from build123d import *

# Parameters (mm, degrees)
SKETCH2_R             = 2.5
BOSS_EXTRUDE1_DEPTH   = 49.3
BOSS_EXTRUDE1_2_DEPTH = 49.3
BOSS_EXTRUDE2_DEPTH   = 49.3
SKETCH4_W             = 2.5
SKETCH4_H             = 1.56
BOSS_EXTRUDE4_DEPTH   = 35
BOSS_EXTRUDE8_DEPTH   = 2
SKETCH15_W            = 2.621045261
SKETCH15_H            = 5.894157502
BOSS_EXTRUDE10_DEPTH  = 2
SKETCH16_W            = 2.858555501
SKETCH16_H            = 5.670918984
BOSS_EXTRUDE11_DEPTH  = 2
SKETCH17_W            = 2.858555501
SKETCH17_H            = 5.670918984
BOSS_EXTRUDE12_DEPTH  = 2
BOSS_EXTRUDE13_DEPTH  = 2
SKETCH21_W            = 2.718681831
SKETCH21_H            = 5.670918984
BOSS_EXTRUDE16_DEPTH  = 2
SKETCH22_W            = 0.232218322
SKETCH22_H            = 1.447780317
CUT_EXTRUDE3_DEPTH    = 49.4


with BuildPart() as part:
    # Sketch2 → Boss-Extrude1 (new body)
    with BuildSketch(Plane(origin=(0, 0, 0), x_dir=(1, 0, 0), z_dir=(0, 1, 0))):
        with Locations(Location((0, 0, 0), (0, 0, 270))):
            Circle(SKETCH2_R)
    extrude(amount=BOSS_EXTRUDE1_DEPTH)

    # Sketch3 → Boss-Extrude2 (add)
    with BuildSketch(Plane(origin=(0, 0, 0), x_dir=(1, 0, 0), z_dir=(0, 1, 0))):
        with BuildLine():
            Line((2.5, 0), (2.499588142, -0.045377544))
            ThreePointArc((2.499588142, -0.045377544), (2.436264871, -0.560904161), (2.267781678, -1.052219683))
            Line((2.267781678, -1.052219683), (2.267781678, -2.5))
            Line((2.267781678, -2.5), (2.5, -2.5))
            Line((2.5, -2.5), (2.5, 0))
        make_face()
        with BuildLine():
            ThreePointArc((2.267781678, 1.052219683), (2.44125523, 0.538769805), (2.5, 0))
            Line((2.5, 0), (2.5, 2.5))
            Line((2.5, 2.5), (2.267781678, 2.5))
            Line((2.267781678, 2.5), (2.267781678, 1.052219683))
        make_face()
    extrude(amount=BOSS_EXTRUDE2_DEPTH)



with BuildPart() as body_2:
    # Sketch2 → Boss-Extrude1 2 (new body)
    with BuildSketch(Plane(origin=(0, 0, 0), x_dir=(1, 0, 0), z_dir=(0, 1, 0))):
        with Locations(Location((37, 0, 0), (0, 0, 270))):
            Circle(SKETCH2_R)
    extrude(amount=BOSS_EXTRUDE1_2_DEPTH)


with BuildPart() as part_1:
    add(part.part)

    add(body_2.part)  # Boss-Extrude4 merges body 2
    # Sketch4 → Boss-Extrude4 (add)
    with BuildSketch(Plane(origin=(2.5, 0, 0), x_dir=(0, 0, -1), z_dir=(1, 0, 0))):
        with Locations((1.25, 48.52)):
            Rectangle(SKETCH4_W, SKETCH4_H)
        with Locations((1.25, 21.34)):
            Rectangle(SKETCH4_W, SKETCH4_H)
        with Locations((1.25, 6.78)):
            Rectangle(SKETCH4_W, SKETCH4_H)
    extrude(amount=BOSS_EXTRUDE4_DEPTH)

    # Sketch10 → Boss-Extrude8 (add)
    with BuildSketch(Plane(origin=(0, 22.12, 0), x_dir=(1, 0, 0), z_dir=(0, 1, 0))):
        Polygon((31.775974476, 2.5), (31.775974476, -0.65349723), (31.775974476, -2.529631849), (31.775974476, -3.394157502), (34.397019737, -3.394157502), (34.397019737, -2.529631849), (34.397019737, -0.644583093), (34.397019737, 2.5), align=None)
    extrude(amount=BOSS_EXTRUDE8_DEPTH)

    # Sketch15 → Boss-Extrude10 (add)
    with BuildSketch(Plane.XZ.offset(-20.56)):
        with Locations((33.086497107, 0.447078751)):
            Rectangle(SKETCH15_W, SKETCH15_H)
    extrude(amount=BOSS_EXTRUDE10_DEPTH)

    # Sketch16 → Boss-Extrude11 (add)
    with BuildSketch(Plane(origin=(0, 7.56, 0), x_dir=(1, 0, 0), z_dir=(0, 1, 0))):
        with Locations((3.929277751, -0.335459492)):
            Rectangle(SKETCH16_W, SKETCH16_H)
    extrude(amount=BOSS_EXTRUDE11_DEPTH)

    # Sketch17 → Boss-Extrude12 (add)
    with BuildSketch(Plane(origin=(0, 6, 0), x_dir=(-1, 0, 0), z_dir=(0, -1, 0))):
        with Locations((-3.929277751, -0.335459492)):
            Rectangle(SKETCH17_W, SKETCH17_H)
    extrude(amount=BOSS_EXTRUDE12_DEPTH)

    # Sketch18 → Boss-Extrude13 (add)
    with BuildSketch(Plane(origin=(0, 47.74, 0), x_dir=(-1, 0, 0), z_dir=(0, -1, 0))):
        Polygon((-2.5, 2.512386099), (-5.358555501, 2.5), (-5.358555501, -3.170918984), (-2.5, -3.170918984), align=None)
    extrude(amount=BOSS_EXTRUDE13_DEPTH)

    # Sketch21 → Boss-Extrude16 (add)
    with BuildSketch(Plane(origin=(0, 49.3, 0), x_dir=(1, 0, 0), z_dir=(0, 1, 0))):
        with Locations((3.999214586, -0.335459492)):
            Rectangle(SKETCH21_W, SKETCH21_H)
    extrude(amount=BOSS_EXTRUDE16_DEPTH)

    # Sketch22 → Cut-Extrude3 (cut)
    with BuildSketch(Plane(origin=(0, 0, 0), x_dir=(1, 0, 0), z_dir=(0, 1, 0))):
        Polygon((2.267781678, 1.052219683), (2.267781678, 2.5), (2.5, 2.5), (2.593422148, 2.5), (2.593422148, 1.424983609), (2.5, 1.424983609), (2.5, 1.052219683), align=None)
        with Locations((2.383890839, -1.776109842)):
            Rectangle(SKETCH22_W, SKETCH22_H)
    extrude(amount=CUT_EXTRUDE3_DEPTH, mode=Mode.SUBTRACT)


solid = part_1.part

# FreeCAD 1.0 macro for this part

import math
import FreeCAD as App
import Part
import Sketcher

V = App.Vector
Q = App.Units.Quantity

doc = App.newDocument("Part")
body = doc.addObject("PartDesign::Body", "Body")

# Sketch on XZ plane
sketch1 = body.newObject("Sketcher::SketchObject", "Sketch")
sketch1.AttachmentSupport = (doc.getObject("XZ_Plane"), [""])
sketch1.MapMode = "FlatFace"
sketch1.addGeometry(Part.Circle(V(0, 0, 0), V(0, 0, 1), 2.5), False)
sketch1.addConstraint([
    Sketcher.Constraint("Coincident", 0, 3, -1, 1),
    Sketcher.Constraint("Diameter", 0, 5.0),
])
pad1 = body.newObject("PartDesign::Pad", "Pad")
pad1.Profile = sketch1
pad1.Length = 49.3
pad1.Reversed = True

# Sketch on XZ plane
sketch2 = body.newObject("Sketcher::SketchObject", "Sketch001")
sketch2.AttachmentSupport = (doc.getObject("XZ_Plane"), [""])
sketch2.MapMode = "FlatFace"
sketch2.addGeometry([
    Part.LineSegment(V(2.5, 0, 0), V(2.5, 0.045, 0)),  # 0
    Part.ArcOfCircle(Part.Circle(V(0, 0, 0), V(0, 0, 1), 2.5), math.radians(1), math.radians(25)),  # 1
    Part.LineSegment(V(2.268, 1.052, 0), V(2.268, 2.5, 0)),  # 2
    Part.LineSegment(V(2.268, 2.5, 0), V(2.5, 2.5, 0)),  # 3
    Part.LineSegment(V(2.5, 2.5, 0), V(2.5, 0, 0)),  # 4
    Part.ArcOfCircle(Part.Circle(V(0, 0, 0), V(0, 0, 1), 2.5), math.radians(-25), math.radians(0)),  # 5
    Part.LineSegment(V(2.5, 0, 0), V(2.5, -2.5, 0)),  # 6
    Part.LineSegment(V(2.5, -2.5, 0), V(2.268, -2.5, 0)),  # 7
    Part.LineSegment(V(2.268, -2.5, 0), V(2.268, -1.052, 0)),  # 8
], False)
sketch2.addConstraint([
    Sketcher.Constraint("Coincident", 0, 2, 1, 1),
    Sketcher.Constraint("Coincident", 1, 2, 2, 1),
    Sketcher.Constraint("Coincident", 2, 2, 3, 1),
    Sketcher.Constraint("Coincident", 3, 2, 4, 1),
    Sketcher.Constraint("Coincident", 4, 2, 0, 1),
    Sketcher.Constraint("Tangent", 5, 2, 6, 1),
    Sketcher.Constraint("Coincident", 6, 2, 7, 1),
    Sketcher.Constraint("Coincident", 7, 2, 8, 1),
    Sketcher.Constraint("Coincident", 8, 2, 5, 1),
    Sketcher.Constraint("Vertical", 2),
    Sketcher.Constraint("Horizontal", 3),
    Sketcher.Constraint("Vertical", 4),
    Sketcher.Constraint("Vertical", 6),
    Sketcher.Constraint("Horizontal", 7),
    Sketcher.Constraint("Vertical", 8),
    Sketcher.Constraint("Coincident", 1, 3, -1, 1),
    Sketcher.Constraint("Coincident", 5, 3, -1, 1),
    Sketcher.Constraint("Coincident", 5, 2, 4, 2),
    Sketcher.Constraint("Equal", 1, 5),
    Sketcher.Constraint("Symmetric", 2, 2, 7, 2, -1),
    Sketcher.Constraint("Radius", 1, 2.5),
    Sketcher.Constraint("DistanceY", 4, 2, 4, 1, 2.5),
    Sketcher.Constraint("Angle", 0, Q("90.520017 deg")),
    Sketcher.Constraint("DistanceX", 3, 1, 3, 2, 0.232218),
])
pad2 = body.newObject("PartDesign::Pad", "Pad001")
pad2.Profile = sketch2
pad2.Length = 49.3
pad2.Reversed = True
body2 = doc.addObject("PartDesign::Body", "Body001")

# Sketch on XZ plane
sketch3 = body2.newObject("Sketcher::SketchObject", "Sketch002")
sketch3.AttachmentSupport = (doc.getObject("XZ_Plane001"), [""])
sketch3.MapMode = "FlatFace"
sketch3.addGeometry(Part.Circle(V(37, 0, 0), V(0, 0, 1), 2.5), False)
sketch3.addConstraint([
    Sketcher.Constraint("PointOnObject", 0, 3, -1),
    Sketcher.Constraint("Diameter", 0, 5.0),
    Sketcher.Constraint("DistanceX", -1, 1, 0, 3, 37.0),
])
pad3 = body2.newObject("PartDesign::Pad", "Pad002")
pad3.Profile = sketch3
pad3.Length = 49.3
pad3.Reversed = True
body.AllowCompound = True
doc.recompute()

boolean = body.newObject("PartDesign::Boolean", "Boolean")
boolean.Type = "Fuse"
boolean.addObjects([body2])

# Sketch on YZ plane
sketch4 = body.newObject("Sketcher::SketchObject", "Sketch003")
sketch4.AttachmentSupport = (doc.getObject("YZ_Plane"), [""])
sketch4.MapMode = "FlatFace"
sketch4.AttachmentOffset = App.Placement(V(0, 0, 2.5), App.Rotation())
sketch4.addGeometry([
    Part.LineSegment(V(49.3, 0, 0), V(47.7, 0, 0)),  # 0
    Part.LineSegment(V(47.7, 0, 0), V(47.7, -2.5, 0)),  # 1
    Part.LineSegment(V(47.7, -2.5, 0), V(49.3, -2.5, 0)),  # 2
    Part.LineSegment(V(49.3, -2.5, 0), V(49.3, 0, 0)),  # 3
    Part.LineSegment(V(22.1, 0, 0), V(20.6, 0, 0)),  # 4
    Part.LineSegment(V(20.6, 0, 0), V(20.6, -2.5, 0)),  # 5
    Part.LineSegment(V(20.6, -2.5, 0), V(22.1, -2.5, 0)),  # 6
    Part.LineSegment(V(22.1, -2.5, 0), V(22.1, 0, 0)),  # 7
    Part.LineSegment(V(7.6, 0, 0), V(6, 0, 0)),  # 8
    Part.LineSegment(V(6, 0, 0), V(6, -2.5, 0)),  # 9
    Part.LineSegment(V(6, -2.5, 0), V(7.6, -2.5, 0)),  # 10
    Part.LineSegment(V(7.6, -2.5, 0), V(7.6, 0, 0)),  # 11
], False)
sketch4.addConstraint([
    Sketcher.Constraint("Coincident", 0, 2, 1, 1),
    Sketcher.Constraint("Coincident", 1, 2, 2, 1),
    Sketcher.Constraint("Coincident", 2, 2, 3, 1),
    Sketcher.Constraint("Coincident", 3, 2, 0, 1),
    Sketcher.Constraint("Coincident", 4, 2, 5, 1),
    Sketcher.Constraint("Coincident", 5, 2, 6, 1),
    Sketcher.Constraint("Coincident", 6, 2, 7, 1),
    Sketcher.Constraint("Coincident", 7, 2, 4, 1),
    Sketcher.Constraint("Coincident", 8, 2, 9, 1),
    Sketcher.Constraint("Coincident", 9, 2, 10, 1),
    Sketcher.Constraint("Coincident", 10, 2, 11, 1),
    Sketcher.Constraint("Coincident", 11, 2, 8, 1),
    Sketcher.Constraint("Horizontal", 0),
    Sketcher.Constraint("Vertical", 1),
    Sketcher.Constraint("Horizontal", 2),
    Sketcher.Constraint("Vertical", 3),
    Sketcher.Constraint("Horizontal", 4),
    Sketcher.Constraint("Vertical", 5),
    Sketcher.Constraint("Horizontal", 6),
    Sketcher.Constraint("Vertical", 7),
    Sketcher.Constraint("Horizontal", 8),
    Sketcher.Constraint("Vertical", 9),
    Sketcher.Constraint("Horizontal", 10),
    Sketcher.Constraint("Vertical", 11),
    Sketcher.Constraint("PointOnObject", 0, 2, -1),
    Sketcher.Constraint("PointOnObject", 4, 2, -1),
    Sketcher.Constraint("PointOnObject", 8, 2, -1),
    Sketcher.Constraint("Horizontal", 2, 2, 5, 2),
    Sketcher.Constraint("Horizontal", 6, 2, 9, 2),
    Sketcher.Constraint("Equal", 2, 4),
    Sketcher.Constraint("Equal", 6, 8),
    Sketcher.Constraint("DistanceY", 1, 2, 1, 1, 2.5),
    Sketcher.Constraint("DistanceX", -1, 1, 8, 2, 6.0),
    Sketcher.Constraint("DistanceX", 10, 2, 5, 2, 13.0),
    Sketcher.Constraint("DistanceX", 0, 2, 0, 1, 1.56),
    Sketcher.Constraint("DistanceX", -1, 1, 2, 2, 49.3),
])
pad4 = body.newObject("PartDesign::Pad", "Pad003")
pad4.Profile = sketch4
pad4.Length = 35

# Sketch on XZ plane
sketch5 = body.newObject("Sketcher::SketchObject", "Sketch004")
sketch5.AttachmentSupport = (doc.getObject("XZ_Plane"), [""])
sketch5.MapMode = "FlatFace"
sketch5.AttachmentOffset = App.Placement(V(0, 0, -22.12), App.Rotation())
sketch5.addGeometry([
    Part.LineSegment(V(31.8, -2.5, 0), V(31.8, 3.4, 0)),
    Part.LineSegment(V(31.8, 3.4, 0), V(34.4, 3.4, 0)),
    Part.LineSegment(V(34.4, 3.4, 0), V(34.4, -2.5, 0)),
    Part.LineSegment(V(34.4, -2.5, 0), V(31.8, -2.5, 0)),
], False)
sketch5.addConstraint([
    Sketcher.Constraint("Coincident", 0, 2, 1, 1),
    Sketcher.Constraint("Coincident", 1, 2, 2, 1),
    Sketcher.Constraint("Coincident", 2, 2, 3, 1),
    Sketcher.Constraint("Coincident", 3, 2, 0, 1),
    Sketcher.Constraint("Vertical", 0),
    Sketcher.Constraint("Horizontal", 1),
    Sketcher.Constraint("Vertical", 2),
    Sketcher.Constraint("Horizontal", 3),
    Sketcher.Constraint("DistanceY", 2, 2, -1, 1, 2.5),
    Sketcher.Constraint("DistanceX", 1, 1, 1, 2, 2.621045),
    Sketcher.Constraint("DistanceY", 0, 1, 0, 2, 5.894158),
    Sketcher.Constraint("DistanceX", -1, 1, 1, 2, 34.39702),
])
pad5 = body.newObject("PartDesign::Pad", "Pad004")
pad5.Profile = sketch5
pad5.Length = 2
pad5.Reversed = True

# Sketch on XZ plane
sketch6 = body.newObject("Sketcher::SketchObject", "Sketch005")
sketch6.AttachmentSupport = (doc.getObject("XZ_Plane"), [""])
sketch6.MapMode = "FlatFace"
sketch6.AttachmentOffset = App.Placement(V(0, 0, -20.56), App.Rotation())
sketch6.addGeometry([
    Part.LineSegment(V(31.8, 3.4, 0), V(31.8, -2.5, 0)),
    Part.LineSegment(V(31.8, -2.5, 0), V(34.4, -2.5, 0)),
    Part.LineSegment(V(34.4, -2.5, 0), V(34.4, 3.4, 0)),
    Part.LineSegment(V(34.4, 3.4, 0), V(31.8, 3.4, 0)),
], False)
sketch6.addConstraint([
    Sketcher.Constraint("Coincident", 0, 2, 1, 1),
    Sketcher.Constraint("Coincident", 1, 2, 2, 1),
    Sketcher.Constraint("Coincident", 2, 2, 3, 1),
    Sketcher.Constraint("Coincident", 3, 2, 0, 1),
    Sketcher.Constraint("Vertical", 0),
    Sketcher.Constraint("Horizontal", 1),
    Sketcher.Constraint("Vertical", 2),
    Sketcher.Constraint("Horizontal", 3),
    Sketcher.Constraint("DistanceY", 0, 2, -1, 1, 2.5),
    Sketcher.Constraint("DistanceX", 1, 1, 1, 2, 2.621045),
    Sketcher.Constraint("DistanceY", 0, 2, 0, 1, 5.894158),
    Sketcher.Constraint("DistanceX", -1, 1, 1, 2, 34.39702),
])
pad6 = body.newObject("PartDesign::Pad", "Pad005")
pad6.Profile = sketch6
pad6.Length = 2

# Sketch on XZ plane
sketch7 = body.newObject("Sketcher::SketchObject", "Sketch006")
sketch7.AttachmentSupport = (doc.getObject("XZ_Plane"), [""])
sketch7.MapMode = "FlatFace"
sketch7.AttachmentOffset = App.Placement(V(0, 0, -7.56), App.Rotation())
sketch7.addGeometry([
    Part.LineSegment(V(2.5, -2.5, 0), V(2.5, 3.2, 0)),
    Part.LineSegment(V(2.5, 3.2, 0), V(5.4, 3.2, 0)),
    Part.LineSegment(V(5.4, 3.2, 0), V(5.4, -2.5, 0)),
    Part.LineSegment(V(5.4, -2.5, 0), V(2.5, -2.5, 0)),
], False)
sketch7.addConstraint([
    Sketcher.Constraint("Coincident", 0, 2, 1, 1),
    Sketcher.Constraint("Coincident", 1, 2, 2, 1),
    Sketcher.Constraint("Coincident", 2, 2, 3, 1),
    Sketcher.Constraint("Coincident", 3, 2, 0, 1),
    Sketcher.Constraint("Vertical", 0),
    Sketcher.Constraint("Horizontal", 1),
    Sketcher.Constraint("Vertical", 2),
    Sketcher.Constraint("Horizontal", 3),
    Sketcher.Constraint("DistanceX", -1, 1, 0, 2, 2.5),
    Sketcher.Constraint("DistanceY", 2, 2, -1, 1, 2.5),
    Sketcher.Constraint("DistanceY", 0, 1, 0, 2, 5.670919),
    Sketcher.Constraint("DistanceX", 1, 1, 1, 2, 2.858555),
])
pad7 = body.newObject("PartDesign::Pad", "Pad006")
pad7.Profile = sketch7
pad7.Length = 2
pad7.Reversed = True

# Sketch on XZ plane
sketch8 = body.newObject("Sketcher::SketchObject", "Sketch007")
sketch8.AttachmentSupport = (doc.getObject("XZ_Plane"), [""])
sketch8.MapMode = "FlatFace"
sketch8.AttachmentOffset = App.Placement(V(0, 0, -6), App.Rotation())
sketch8.addGeometry([
    Part.LineSegment(V(5.4, -2.5, 0), V(5.4, 3.2, 0)),
    Part.LineSegment(V(5.4, 3.2, 0), V(2.5, 3.2, 0)),
    Part.LineSegment(V(2.5, 3.2, 0), V(2.5, -2.5, 0)),
    Part.LineSegment(V(2.5, -2.5, 0), V(5.4, -2.5, 0)),
], False)
sketch8.addConstraint([
    Sketcher.Constraint("Coincident", 0, 2, 1, 1),
    Sketcher.Constraint("Coincident", 1, 2, 2, 1),
    Sketcher.Constraint("Coincident", 2, 2, 3, 1),
    Sketcher.Constraint("Coincident", 3, 2, 0, 1),
    Sketcher.Constraint("Vertical", 0),
    Sketcher.Constraint("Horizontal", 1),
    Sketcher.Constraint("Vertical", 2),
    Sketcher.Constraint("Horizontal", 3),
    Sketcher.Constraint("DistanceX", -1, 1, 1, 2, 2.5),
    Sketcher.Constraint("DistanceY", 2, 2, -1, 1, 2.5),
    Sketcher.Constraint("DistanceY", 0, 1, 0, 2, 5.670919),
    Sketcher.Constraint("DistanceX", 1, 2, 1, 1, 2.858555),
])
pad8 = body.newObject("PartDesign::Pad", "Pad007")
pad8.Profile = sketch8
pad8.Length = 2

# Sketch on XZ plane
sketch9 = body.newObject("Sketcher::SketchObject", "Sketch008")
sketch9.AttachmentSupport = (doc.getObject("XZ_Plane"), [""])
sketch9.MapMode = "FlatFace"
sketch9.AttachmentOffset = App.Placement(V(0, 0, -47.74), App.Rotation())
sketch9.addGeometry([
    Part.LineSegment(V(2.5, -2.5, 0), V(5.4, -2.5, 0)),
    Part.LineSegment(V(5.4, -2.5, 0), V(5.4, 3.2, 0)),
    Part.LineSegment(V(5.4, 3.2, 0), V(2.5, 3.2, 0)),
    Part.LineSegment(V(2.5, 3.2, 0), V(2.5, -2.5, 0)),
], False)
sketch9.addConstraint([
    Sketcher.Constraint("Coincident", 0, 2, 1, 1),
    Sketcher.Constraint("Coincident", 1, 2, 2, 1),
    Sketcher.Constraint("Coincident", 2, 2, 3, 1),
    Sketcher.Constraint("Coincident", 3, 2, 0, 1),
    Sketcher.Constraint("Vertical", 1),
    Sketcher.Constraint("Horizontal", 2),
    Sketcher.Constraint("Vertical", 3),
    Sketcher.Constraint("DistanceY", 0, 2, -1, 1, 2.5),
    Sketcher.Constraint("DistanceX", -1, 1, 2, 2, 2.5),
    Sketcher.Constraint("DistanceY", 1, 1, 1, 2, 5.670919),
    Sketcher.Constraint("DistanceX", 2, 2, 2, 1, 2.858556),
    Sketcher.Constraint("DistanceY", 3, 2, 3, 1, 5.683305),
])
pad9 = body.newObject("PartDesign::Pad", "Pad008")
pad9.Profile = sketch9
pad9.Length = 2

# Sketch on XZ plane
sketch10 = body.newObject("Sketcher::SketchObject", "Sketch009")
sketch10.AttachmentSupport = (doc.getObject("XZ_Plane"), [""])
sketch10.MapMode = "FlatFace"
sketch10.AttachmentOffset = App.Placement(V(0, 0, -49.3), App.Rotation())
sketch10.addGeometry([
    Part.LineSegment(V(2.6, -2.5, 0), V(2.6, 3.2, 0)),
    Part.LineSegment(V(2.6, 3.2, 0), V(5.4, 3.2, 0)),
    Part.LineSegment(V(5.4, 3.2, 0), V(5.4, -2.5, 0)),
    Part.LineSegment(V(5.4, -2.5, 0), V(2.6, -2.5, 0)),
], False)
sketch10.addConstraint([
    Sketcher.Constraint("Coincident", 0, 2, 1, 1),
    Sketcher.Constraint("Coincident", 1, 2, 2, 1),
    Sketcher.Constraint("Coincident", 2, 2, 3, 1),
    Sketcher.Constraint("Coincident", 3, 2, 0, 1),
    Sketcher.Constraint("Vertical", 0),
    Sketcher.Constraint("Horizontal", 1),
    Sketcher.Constraint("Vertical", 2),
    Sketcher.Constraint("Horizontal", 3),
    Sketcher.Constraint("DistanceY", 2, 2, -1, 1, 2.5),
    Sketcher.Constraint("DistanceX", 1, 1, 1, 2, 2.718682),
    Sketcher.Constraint("DistanceY", 0, 1, 0, 2, 5.670919),
    Sketcher.Constraint("DistanceX", -1, 1, 0, 2, 2.639874),
])
pad10 = body.newObject("PartDesign::Pad", "Pad009")
pad10.Profile = sketch10
pad10.Length = 2
pad10.Reversed = True

# Sketch on XZ plane
sketch11 = body.newObject("Sketcher::SketchObject", "Sketch010")
sketch11.AttachmentSupport = (doc.getObject("XZ_Plane"), [""])
sketch11.MapMode = "FlatFace"
sketch11.addGeometry([
    Part.LineSegment(V(2.27, -2.5, 0), V(2.27, -1.05, 0)),  # 0
    Part.LineSegment(V(2.27, -1.05, 0), V(2.5, -1.05, 0)),  # 1
    Part.LineSegment(V(2.5, -1.05, 0), V(2.5, -1.42, 0)),  # 2
    Part.LineSegment(V(2.5, -1.42, 0), V(2.59, -1.42, 0)),  # 3
    Part.LineSegment(V(2.59, -1.42, 0), V(2.59, -2.5, 0)),  # 4
    Part.LineSegment(V(2.59, -2.5, 0), V(2.27, -2.5, 0)),  # 5
    Part.LineSegment(V(2.27, 1.05, 0), V(2.27, 2.5, 0)),  # 6
    Part.LineSegment(V(2.27, 2.5, 0), V(2.5, 2.5, 0)),  # 7
    Part.LineSegment(V(2.5, 2.5, 0), V(2.5, 1.05, 0)),  # 8
    Part.LineSegment(V(2.5, 1.05, 0), V(2.27, 1.05, 0)),  # 9
], False)
sketch11.addConstraint([
    Sketcher.Constraint("Coincident", 0, 2, 1, 1),
    Sketcher.Constraint("Coincident", 1, 2, 2, 1),
    Sketcher.Constraint("Coincident", 2, 2, 3, 1),
    Sketcher.Constraint("Coincident", 3, 2, 4, 1),
    Sketcher.Constraint("Coincident", 4, 2, 5, 1),
    Sketcher.Constraint("Coincident", 5, 2, 0, 1),
    Sketcher.Constraint("Coincident", 6, 2, 7, 1),
    Sketcher.Constraint("Coincident", 7, 2, 8, 1),
    Sketcher.Constraint("Coincident", 8, 2, 9, 1),
    Sketcher.Constraint("Coincident", 9, 2, 6, 1),
    Sketcher.Constraint("Vertical", 0),
    Sketcher.Constraint("Horizontal", 1),
    Sketcher.Constraint("Vertical", 2),
    Sketcher.Constraint("Horizontal", 3),
    Sketcher.Constraint("Vertical", 4),
    Sketcher.Constraint("Horizontal", 5),
    Sketcher.Constraint("Vertical", 6),
    Sketcher.Constraint("Horizontal", 7),
    Sketcher.Constraint("Vertical", 8),
    Sketcher.Constraint("Horizontal", 9),
    Sketcher.Constraint("Symmetric", 5, 2, 6, 2, -1),
    Sketcher.Constraint("Symmetric", 1, 2, 8, 2, -1),
    Sketcher.Constraint("DistanceY", 5, 2, 6, 2, 5.0),
    Sketcher.Constraint("DistanceX", -1, 1, 1, 2, 2.5),
    Sketcher.Constraint("DistanceX", 1, 1, 1, 2, 0.232218),
    Sketcher.Constraint("DistanceX", 5, 2, 5, 1, 0.32564),
    Sketcher.Constraint("DistanceY", 0, 1, 0, 2, 1.44778),
    Sketcher.Constraint("DistanceY", 2, 2, 2, 1, 0.372764),
])
pocket1 = body.newObject("PartDesign::Pocket", "Pocket")
pocket1.Profile = sketch11
pocket1.Length = 49.4

doc.recompute()
